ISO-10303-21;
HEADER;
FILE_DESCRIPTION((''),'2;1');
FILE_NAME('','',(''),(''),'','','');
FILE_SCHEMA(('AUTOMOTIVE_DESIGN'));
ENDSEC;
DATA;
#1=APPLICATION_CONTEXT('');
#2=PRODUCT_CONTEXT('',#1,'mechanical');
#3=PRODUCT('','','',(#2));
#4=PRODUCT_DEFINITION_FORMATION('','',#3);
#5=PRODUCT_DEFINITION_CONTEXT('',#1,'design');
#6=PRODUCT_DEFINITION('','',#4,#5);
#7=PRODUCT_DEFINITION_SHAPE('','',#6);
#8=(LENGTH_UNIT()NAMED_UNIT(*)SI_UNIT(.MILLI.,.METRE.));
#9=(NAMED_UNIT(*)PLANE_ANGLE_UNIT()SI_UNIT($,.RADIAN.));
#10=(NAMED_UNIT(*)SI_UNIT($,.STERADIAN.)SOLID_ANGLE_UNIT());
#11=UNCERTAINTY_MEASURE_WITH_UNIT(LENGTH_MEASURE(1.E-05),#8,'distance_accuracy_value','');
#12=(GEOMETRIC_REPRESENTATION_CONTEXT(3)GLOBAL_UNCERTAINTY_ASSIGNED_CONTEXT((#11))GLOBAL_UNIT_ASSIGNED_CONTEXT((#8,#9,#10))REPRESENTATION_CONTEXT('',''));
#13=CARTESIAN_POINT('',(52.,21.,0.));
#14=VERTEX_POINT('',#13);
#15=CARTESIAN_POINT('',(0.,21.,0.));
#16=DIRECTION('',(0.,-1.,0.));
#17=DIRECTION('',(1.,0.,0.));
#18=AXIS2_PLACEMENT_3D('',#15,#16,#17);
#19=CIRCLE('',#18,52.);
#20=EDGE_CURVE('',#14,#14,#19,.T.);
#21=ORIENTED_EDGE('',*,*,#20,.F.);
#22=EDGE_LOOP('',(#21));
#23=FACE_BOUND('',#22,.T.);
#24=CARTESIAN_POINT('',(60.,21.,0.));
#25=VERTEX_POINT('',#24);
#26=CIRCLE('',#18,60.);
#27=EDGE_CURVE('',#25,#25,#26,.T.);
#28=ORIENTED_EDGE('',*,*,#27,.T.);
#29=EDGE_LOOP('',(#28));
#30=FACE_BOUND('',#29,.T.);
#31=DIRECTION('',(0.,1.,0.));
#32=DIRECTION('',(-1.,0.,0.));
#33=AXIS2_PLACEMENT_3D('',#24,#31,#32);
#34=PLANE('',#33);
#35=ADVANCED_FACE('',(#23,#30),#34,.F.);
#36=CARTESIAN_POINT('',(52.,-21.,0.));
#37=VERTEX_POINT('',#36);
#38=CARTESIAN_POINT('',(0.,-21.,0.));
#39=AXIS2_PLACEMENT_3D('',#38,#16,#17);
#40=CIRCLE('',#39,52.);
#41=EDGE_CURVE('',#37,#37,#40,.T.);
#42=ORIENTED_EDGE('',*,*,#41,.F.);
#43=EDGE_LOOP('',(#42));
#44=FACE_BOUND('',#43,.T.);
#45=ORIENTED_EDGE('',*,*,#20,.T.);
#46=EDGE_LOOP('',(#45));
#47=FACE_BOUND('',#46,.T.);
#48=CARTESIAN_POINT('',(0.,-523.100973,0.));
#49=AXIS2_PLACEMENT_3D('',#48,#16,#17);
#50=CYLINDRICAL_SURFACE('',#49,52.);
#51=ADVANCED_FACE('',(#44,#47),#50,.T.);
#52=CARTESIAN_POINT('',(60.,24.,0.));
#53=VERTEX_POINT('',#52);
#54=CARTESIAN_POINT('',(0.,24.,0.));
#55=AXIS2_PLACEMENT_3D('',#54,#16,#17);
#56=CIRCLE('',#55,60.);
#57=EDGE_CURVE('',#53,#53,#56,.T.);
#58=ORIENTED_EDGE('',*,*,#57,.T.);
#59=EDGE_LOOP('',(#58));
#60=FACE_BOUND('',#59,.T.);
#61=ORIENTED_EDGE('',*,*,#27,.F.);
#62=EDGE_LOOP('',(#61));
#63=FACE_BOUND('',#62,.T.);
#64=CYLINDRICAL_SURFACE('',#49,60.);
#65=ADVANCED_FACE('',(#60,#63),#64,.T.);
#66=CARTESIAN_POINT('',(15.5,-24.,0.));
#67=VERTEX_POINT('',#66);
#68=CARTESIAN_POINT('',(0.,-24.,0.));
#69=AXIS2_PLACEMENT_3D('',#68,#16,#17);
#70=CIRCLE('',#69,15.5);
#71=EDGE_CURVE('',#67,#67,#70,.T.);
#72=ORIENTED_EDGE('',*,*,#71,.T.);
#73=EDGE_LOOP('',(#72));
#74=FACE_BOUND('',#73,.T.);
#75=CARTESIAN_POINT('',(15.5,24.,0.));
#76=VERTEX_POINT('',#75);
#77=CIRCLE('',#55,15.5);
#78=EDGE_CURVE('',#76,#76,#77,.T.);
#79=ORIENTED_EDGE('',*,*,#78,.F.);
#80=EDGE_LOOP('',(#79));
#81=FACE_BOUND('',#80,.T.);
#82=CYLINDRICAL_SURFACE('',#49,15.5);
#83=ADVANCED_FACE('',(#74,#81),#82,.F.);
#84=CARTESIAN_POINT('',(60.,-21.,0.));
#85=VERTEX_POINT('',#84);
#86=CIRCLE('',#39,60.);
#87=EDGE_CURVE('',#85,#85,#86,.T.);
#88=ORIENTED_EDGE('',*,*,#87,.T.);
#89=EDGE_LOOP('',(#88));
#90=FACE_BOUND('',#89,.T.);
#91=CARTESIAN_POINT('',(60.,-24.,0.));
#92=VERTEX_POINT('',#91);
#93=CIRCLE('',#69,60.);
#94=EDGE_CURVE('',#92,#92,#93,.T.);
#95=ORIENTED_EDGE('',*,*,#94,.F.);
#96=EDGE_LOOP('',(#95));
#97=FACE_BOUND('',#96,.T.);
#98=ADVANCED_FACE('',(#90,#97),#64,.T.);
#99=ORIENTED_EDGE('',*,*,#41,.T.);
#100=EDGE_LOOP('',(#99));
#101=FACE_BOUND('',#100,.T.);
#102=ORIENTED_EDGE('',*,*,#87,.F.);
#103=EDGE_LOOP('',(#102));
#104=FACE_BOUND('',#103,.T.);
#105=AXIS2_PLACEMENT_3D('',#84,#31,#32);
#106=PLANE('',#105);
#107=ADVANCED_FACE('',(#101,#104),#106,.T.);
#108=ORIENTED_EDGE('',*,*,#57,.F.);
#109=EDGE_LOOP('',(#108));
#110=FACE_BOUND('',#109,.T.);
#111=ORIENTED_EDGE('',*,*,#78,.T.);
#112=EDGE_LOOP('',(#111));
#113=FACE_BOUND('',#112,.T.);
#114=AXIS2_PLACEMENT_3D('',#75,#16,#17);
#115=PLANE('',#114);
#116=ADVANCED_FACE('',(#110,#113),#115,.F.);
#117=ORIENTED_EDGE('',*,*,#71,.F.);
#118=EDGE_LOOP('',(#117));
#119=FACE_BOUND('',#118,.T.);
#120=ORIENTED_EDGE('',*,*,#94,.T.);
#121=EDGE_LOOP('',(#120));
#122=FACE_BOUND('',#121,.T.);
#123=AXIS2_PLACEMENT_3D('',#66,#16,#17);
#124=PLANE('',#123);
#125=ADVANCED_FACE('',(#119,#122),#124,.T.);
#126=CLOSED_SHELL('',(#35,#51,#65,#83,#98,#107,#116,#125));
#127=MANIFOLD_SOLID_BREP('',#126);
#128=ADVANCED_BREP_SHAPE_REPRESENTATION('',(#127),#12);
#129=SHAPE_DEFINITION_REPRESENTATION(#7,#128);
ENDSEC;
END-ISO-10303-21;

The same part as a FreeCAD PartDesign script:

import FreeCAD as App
import Part
import Sketcher

V = App.Vector


def add_polygon(sketch, points):
    """Adds a closed chain of lines whose ends are joined by coincident constraints."""
    first, n = sketch.GeometryCount, len(points)
    for a, b in zip(points, points[1:] + points[:1]):
        sketch.addGeometry(Part.LineSegment(App.Vector(*a, 0), App.Vector(*b, 0)), False)
    for i in range(n):
        sketch.addConstraint(Sketcher.Constraint("Coincident", first + i, 2, first + (i + 1) % n, 1))

doc = App.newDocument("Part")
body = doc.addObject("PartDesign::Body", "Body")

# Sketch on XY plane
sketch1 = body.newObject("Sketcher::SketchObject", "Sketch")
sketch1.AttachmentSupport = (doc.getObject("XY_Plane"), [""])
sketch1.MapMode = "FlatFace"
add_polygon(sketch1, [(60, 24), (15.5, 24), (15.5, -24), (60, -24), (60, -21), (52, -21), (52, 21), (60, 21)])  # lines 0-7
sketch1.addConstraint([
    Sketcher.Constraint("Horizontal", 0),
    Sketcher.Constraint("Vertical", 1),
    Sketcher.Constraint("Horizontal", 2),
    Sketcher.Constraint("Vertical", 3),
    Sketcher.Constraint("Horizontal", 4),
    Sketcher.Constraint("Vertical", 5),
    Sketcher.Constraint("Horizontal", 6),
    Sketcher.Constraint("Vertical", 7),
    Sketcher.Constraint("Symmetric", 3, 2, 6, 2, -1),
    Sketcher.Constraint("Equal", 3, 7),
    Sketcher.Constraint("DistanceX", 4, 2, 4, 1, 8.0),
    Sketcher.Constraint("DistanceY", 1, 2, 1, 1, 48.0),
    Sketcher.Constraint("DistanceY", 3, 1, 3, 2, 3.0),
    Sketcher.Constraint("DistanceX", 0, 2, 0, 1, 44.5),
    Sketcher.Constraint("DistanceX", -1, 1, 2, 2, 60.0),
])
revolution = body.newObject("PartDesign::Revolution", "Revolution")
revolution.Profile = sketch1
revolution.ReferenceAxis = (sketch1, ["V_Axis"])
revolution.Angle = 360

doc.recompute()
